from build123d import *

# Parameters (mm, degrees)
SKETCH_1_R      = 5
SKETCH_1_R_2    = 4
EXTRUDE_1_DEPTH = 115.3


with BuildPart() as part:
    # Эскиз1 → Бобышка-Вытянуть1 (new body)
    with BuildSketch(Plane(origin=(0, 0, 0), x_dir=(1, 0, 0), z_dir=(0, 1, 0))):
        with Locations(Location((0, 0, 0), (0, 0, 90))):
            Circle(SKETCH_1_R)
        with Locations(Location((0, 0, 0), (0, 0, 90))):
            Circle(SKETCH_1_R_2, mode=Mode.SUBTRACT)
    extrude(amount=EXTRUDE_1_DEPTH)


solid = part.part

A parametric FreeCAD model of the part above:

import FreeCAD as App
import Part
import Sketcher
from FreeCAD import Vector

doc = App.newDocument("Part")
body = doc.addObject("PartDesign::Body", "Body")

sketch1 = body.newObject("Sketcher::SketchObject", "Sketch")
sketch1.AttachmentSupport = (doc.getObject("XZ_Plane"), [""])
sketch1.MapMode = "FlatFace"
sketch1.addGeometry([
    Part.Circle(Vector(0, 0, 0), Vector(0, 0, 1), 5),
    Part.Circle(Vector(0, 0, 0), Vector(0, 0, 1), 4),
], False)
sketch1.addConstraint([
    Sketcher.Constraint("Coincident", 0, 3, -1, 1),
    Sketcher.Constraint("Coincident", 1, 3, -1, 1),
    Sketcher.Constraint("Diameter", 0, 10.0),
    Sketcher.Constraint("Diameter", 1, 8.0),
])
pad1 = body.newObject("PartDesign::Pad", "Pad")
pad1.Profile = sketch1
pad1.Length = 115.3
pad1.Reversed = True

doc.recompute()
